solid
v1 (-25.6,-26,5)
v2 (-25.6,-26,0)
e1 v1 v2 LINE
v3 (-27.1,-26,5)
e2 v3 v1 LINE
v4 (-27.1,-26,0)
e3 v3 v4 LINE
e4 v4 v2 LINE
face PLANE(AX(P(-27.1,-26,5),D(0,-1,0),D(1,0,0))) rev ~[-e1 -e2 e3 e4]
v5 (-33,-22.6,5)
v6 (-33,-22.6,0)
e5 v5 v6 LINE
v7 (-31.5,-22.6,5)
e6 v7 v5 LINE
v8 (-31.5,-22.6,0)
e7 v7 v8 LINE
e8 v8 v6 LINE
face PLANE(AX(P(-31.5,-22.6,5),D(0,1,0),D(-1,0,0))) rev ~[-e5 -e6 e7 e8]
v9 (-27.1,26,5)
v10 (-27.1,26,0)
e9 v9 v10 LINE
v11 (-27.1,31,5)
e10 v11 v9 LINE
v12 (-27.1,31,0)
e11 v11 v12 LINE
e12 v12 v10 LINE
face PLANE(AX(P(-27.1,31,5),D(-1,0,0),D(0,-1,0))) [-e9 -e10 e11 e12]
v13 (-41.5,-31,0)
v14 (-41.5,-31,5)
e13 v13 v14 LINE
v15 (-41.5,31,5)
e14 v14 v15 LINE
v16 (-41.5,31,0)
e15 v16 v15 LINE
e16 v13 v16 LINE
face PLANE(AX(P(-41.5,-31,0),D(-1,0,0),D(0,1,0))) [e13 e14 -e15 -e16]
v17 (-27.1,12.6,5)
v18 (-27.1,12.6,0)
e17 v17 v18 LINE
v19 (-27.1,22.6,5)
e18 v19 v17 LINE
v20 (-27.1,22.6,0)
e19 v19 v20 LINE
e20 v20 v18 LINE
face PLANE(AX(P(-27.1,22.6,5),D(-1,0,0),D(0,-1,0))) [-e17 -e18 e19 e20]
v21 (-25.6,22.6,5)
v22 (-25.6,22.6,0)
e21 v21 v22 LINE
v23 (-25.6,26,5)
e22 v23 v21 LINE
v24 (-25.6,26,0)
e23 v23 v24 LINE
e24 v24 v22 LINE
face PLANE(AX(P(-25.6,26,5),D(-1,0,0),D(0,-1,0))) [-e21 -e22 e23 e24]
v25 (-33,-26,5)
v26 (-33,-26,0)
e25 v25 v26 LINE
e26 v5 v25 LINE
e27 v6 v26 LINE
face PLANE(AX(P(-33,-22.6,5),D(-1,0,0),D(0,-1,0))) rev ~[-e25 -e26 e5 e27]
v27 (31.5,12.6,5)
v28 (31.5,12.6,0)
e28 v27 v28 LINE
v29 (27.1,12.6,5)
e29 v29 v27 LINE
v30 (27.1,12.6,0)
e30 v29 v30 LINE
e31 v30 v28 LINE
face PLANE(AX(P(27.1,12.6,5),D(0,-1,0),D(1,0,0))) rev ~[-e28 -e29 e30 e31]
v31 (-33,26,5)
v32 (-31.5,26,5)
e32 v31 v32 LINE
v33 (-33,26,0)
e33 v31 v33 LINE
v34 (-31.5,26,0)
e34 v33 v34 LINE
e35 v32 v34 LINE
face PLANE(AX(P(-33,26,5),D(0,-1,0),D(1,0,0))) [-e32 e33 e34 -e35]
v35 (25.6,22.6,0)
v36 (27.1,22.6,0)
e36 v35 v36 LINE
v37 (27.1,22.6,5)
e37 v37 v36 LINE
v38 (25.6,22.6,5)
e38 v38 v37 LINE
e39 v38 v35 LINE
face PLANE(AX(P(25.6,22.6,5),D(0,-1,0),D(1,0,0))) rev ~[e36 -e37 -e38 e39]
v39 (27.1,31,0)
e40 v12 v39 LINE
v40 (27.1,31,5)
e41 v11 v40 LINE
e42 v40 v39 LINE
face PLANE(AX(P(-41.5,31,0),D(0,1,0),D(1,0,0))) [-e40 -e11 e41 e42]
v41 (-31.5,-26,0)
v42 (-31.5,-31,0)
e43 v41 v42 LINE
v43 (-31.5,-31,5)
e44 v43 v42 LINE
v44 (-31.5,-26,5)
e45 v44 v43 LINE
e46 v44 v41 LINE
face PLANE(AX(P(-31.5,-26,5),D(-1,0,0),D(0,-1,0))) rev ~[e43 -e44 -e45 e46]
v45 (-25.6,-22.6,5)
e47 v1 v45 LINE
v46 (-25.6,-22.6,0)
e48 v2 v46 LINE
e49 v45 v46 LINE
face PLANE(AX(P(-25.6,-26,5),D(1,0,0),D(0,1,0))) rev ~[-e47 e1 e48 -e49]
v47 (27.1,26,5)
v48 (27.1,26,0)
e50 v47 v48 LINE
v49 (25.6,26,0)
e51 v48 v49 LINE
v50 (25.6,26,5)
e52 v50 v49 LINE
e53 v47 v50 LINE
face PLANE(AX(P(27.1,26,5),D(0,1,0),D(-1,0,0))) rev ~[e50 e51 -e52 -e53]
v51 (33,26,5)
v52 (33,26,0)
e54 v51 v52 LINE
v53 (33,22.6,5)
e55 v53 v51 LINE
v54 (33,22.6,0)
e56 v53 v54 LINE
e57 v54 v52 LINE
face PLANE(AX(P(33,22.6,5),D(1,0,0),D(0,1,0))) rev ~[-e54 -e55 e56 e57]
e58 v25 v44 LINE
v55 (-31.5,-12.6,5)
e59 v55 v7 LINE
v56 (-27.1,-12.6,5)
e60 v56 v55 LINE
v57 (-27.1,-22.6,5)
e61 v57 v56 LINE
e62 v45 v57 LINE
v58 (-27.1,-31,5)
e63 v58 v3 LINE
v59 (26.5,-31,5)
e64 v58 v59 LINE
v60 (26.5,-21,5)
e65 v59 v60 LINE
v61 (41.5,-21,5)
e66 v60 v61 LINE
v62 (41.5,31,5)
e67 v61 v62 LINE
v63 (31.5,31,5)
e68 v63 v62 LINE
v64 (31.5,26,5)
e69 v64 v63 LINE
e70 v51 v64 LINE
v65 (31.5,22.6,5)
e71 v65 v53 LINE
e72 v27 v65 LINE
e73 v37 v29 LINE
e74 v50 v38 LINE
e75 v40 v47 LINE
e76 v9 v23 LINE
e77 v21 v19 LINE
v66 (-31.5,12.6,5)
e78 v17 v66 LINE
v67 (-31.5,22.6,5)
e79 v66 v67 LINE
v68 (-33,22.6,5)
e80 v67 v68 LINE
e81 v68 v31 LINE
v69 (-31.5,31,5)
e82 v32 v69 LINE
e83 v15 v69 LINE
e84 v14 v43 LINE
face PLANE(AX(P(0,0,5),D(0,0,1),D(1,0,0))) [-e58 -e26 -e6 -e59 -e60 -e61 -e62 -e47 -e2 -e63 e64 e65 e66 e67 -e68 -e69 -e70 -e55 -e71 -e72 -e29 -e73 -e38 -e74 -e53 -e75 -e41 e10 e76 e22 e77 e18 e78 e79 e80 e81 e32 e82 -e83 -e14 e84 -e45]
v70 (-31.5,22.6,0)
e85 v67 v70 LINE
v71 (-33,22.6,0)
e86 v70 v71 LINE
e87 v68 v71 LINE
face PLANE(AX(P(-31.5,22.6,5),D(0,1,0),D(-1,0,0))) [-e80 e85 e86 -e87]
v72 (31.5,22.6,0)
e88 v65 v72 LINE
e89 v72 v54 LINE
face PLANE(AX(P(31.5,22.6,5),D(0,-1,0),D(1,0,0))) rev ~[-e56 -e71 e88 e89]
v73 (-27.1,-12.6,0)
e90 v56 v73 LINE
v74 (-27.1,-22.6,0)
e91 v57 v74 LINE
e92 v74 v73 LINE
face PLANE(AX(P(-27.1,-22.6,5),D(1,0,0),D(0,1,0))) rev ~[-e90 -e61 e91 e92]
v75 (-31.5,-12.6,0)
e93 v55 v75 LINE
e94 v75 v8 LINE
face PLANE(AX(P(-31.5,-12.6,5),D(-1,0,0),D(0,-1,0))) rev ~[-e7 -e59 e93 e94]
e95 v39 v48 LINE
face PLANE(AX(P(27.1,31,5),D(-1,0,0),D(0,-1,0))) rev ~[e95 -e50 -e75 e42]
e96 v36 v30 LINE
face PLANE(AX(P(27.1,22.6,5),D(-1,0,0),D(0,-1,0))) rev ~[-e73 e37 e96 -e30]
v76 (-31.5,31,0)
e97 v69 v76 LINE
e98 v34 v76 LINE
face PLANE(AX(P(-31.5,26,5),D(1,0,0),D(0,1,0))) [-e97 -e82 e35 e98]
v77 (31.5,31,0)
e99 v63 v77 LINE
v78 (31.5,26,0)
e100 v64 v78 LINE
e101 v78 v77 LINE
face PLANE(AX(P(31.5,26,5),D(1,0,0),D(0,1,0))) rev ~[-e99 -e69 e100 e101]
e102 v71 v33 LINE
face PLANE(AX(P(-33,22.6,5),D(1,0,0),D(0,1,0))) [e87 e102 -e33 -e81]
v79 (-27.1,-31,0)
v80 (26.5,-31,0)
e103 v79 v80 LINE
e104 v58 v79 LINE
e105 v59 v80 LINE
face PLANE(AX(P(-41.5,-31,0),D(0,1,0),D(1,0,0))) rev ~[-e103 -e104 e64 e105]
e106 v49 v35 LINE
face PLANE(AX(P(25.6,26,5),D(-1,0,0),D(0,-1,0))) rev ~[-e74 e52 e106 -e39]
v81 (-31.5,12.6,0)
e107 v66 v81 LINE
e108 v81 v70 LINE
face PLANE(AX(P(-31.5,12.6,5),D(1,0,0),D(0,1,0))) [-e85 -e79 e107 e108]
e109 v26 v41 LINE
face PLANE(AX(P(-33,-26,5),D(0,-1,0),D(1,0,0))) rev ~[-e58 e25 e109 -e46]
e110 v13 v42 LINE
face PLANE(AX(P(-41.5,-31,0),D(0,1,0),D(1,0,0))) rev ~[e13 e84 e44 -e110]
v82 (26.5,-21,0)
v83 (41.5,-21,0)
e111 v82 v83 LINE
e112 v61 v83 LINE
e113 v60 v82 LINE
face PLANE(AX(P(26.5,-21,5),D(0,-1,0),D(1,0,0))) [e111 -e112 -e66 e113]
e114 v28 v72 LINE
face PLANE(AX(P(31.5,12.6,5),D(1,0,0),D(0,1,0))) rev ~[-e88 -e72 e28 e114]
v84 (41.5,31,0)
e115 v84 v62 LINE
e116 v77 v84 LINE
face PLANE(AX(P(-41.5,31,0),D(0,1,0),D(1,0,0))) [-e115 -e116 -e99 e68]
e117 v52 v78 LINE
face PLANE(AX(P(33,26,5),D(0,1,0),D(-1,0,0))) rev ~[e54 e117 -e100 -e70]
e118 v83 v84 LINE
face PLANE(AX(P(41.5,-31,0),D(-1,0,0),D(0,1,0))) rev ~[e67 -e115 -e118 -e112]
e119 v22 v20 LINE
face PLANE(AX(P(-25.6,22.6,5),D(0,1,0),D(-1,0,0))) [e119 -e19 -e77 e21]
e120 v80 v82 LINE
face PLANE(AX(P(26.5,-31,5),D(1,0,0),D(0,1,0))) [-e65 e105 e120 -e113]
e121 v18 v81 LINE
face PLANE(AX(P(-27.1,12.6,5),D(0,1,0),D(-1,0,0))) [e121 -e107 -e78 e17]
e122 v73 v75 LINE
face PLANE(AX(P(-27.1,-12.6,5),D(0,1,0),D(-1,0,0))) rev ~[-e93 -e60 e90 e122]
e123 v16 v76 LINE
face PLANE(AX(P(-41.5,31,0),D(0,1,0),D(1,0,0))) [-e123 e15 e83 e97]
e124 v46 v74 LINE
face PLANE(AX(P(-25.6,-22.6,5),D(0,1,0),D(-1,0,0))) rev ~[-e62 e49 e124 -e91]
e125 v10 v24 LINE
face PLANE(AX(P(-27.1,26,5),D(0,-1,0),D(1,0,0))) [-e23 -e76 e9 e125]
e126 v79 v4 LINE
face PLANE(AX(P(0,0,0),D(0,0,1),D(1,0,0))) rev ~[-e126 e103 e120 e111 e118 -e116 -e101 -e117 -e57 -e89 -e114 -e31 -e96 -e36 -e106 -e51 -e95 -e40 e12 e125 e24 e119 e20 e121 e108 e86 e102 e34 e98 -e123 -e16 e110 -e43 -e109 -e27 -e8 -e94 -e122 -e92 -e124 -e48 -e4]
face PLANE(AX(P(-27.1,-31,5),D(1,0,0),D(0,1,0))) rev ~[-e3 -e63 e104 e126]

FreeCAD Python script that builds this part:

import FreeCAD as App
import Part
import Sketcher
Q = App.Units.Quantity


def add_polygon(sketch, points):
    """Adds a closed chain of lines whose ends are joined by coincident constraints."""
    first, n = sketch.GeometryCount, len(points)
    for a, b in zip(points, points[1:] + points[:1]):
        sketch.addGeometry(Part.LineSegment(App.Vector(*a, 0), App.Vector(*b, 0)), False)
    for i in range(n):
        sketch.addConstraint(Sketcher.Constraint("Coincident", first + i, 2, first + (i + 1) % n, 1))

doc = App.newDocument("Part")
params = doc.addObject("Spreadsheet::Sheet", "Params")
for row, (alias, value) in enumerate([
    ("sketch1_width", "83 mm"),
    ("sketch1_height", "62 mm"),
    ("pad1_length", "5 mm"),
    ("sketch2_width", "15 mm"),
    ("sketch2_height", "10 mm"),
    ("pocket1_length", "10 mm"),
    ("sketch3_height", "10 mm"),
    ("sketch3_height2", "5 mm"),
    ("sketch3_width", "1.5 mm"),
    ("sketch3_width2", "4.4 mm"),
    ("sketch3_height3", "3.4 mm"),
    ("pocket2_length", "5 mm"),
], start=1):
    params.set(f"A{row}", alias)
    params.set(f"B{row}", "=" + value)
    params.setAlias(f"B{row}", alias)

body = doc.addObject("PartDesign::Body", "Body")

# Sketch on XY plane
sketch1 = doc.addObject("Sketcher::SketchObject", "Sketch")
body.addObject(sketch1)
sketch1.AttachmentSupport = (doc.XY_Plane, [""])
sketch1.MapMode = "FlatFace"
add_polygon(sketch1, [(-42, 31), (-42, -31), (42, -31), (42, 31)])  # lines 0-3
sketch1.addConstraint([
    Sketcher.Constraint("Vertical", 0),
    Sketcher.Constraint("Horizontal", 1),
    Sketcher.Constraint("Vertical", 2),
    Sketcher.Constraint("Horizontal", 3),
    Sketcher.Constraint("Symmetric", 0, 2, 2, 2, -1, 1),
    Sketcher.Constraint("DistanceX", 1, 1, 1, 2, Q("83 mm")),
    Sketcher.Constraint("DistanceY", 0, 2, 0, 1, Q("62 mm")),
])
sketch1.setExpression("Constraints[9]", "Params.sketch1_width")
sketch1.setExpression("Constraints[10]", "Params.sketch1_height")
pad1 = doc.addObject("PartDesign::Pad", "Pad")
body.addObject(pad1)
pad1.Profile = sketch1
pad1.setExpression("Length", "Params.pad1_length")

# Sketch on XY plane
sketch2 = doc.addObject("Sketcher::SketchObject", "Sketch001")
body.addObject(sketch2)
sketch2.AttachmentSupport = (doc.XY_Plane, [""])
sketch2.MapMode = "FlatFace"
sketch2.AttachmentOffset = App.Placement(App.Vector(0, 0, 5), App.Rotation())
add_polygon(sketch2, [(26, -21), (26, -31), (42, -31), (42, -21)])  # lines 0-3
sketch2.addConstraint([
    Sketcher.Constraint("Vertical", 0),
    Sketcher.Constraint("Horizontal", 1),
    Sketcher.Constraint("Vertical", 2),
    Sketcher.Constraint("Horizontal", 3),
    Sketcher.Constraint("DistanceX", 1, 1, 1, 2, Q("15 mm")),
    Sketcher.Constraint("DistanceY", 0, 2, 0, 1, Q("10 mm")),
    Sketcher.Constraint("DistanceY", 0, 2, -1, 1, Q("31 mm")),
    Sketcher.Constraint("DistanceX", -1, 1, 0, 2, Q("26.5 mm")),
])
sketch2.setExpression("Constraints[8]", "Params.sketch2_width")
sketch2.setExpression("Constraints[9]", "Params.sketch2_height")
pocket1 = doc.addObject("PartDesign::Pocket", "Pocket")
body.addObject(pocket1)
pocket1.Profile = sketch2
pocket1.setExpression("Length", "Params.pocket1_length")

# Sketch on XY plane
sketch3 = doc.addObject("Sketcher::SketchObject", "Sketch002")
body.addObject(sketch3)
sketch3.AttachmentSupport = (doc.XY_Plane, [""])
sketch3.MapMode = "FlatFace"
sketch3.AttachmentOffset = App.Placement(App.Vector(0, 0, 5), App.Rotation())
add_polygon(sketch3, [(-27.1, 12.6), (-27.1, 22.6), (-25.6, 22.6), (-25.6, 26), (-27.1, 26), (-27.1, 31), (-31.5, 31), (-31.5, 26), (-33, 26), (-33, 22.6), (-31.5, 22.6), (-31.5, 12.6)])  # lines 0-11
add_polygon(sketch3, [(31.5, 12.6), (31.5, 22.6), (33, 22.6), (33, 26), (31.5, 26), (31.5, 31), (27.1, 31), (27.1, 26), (25.6, 26), (25.6, 22.6), (27.1, 22.6), (27.1, 12.6)])  # lines 12-23
add_polygon(sketch3, [(-31.5, -12.6), (-31.5, -22.6), (-33, -22.6), (-33, -26), (-31.5, -26), (-31.5, -31), (-27.1, -31), (-27.1, -26), (-25.6, -26), (-25.6, -22.6), (-27.1, -22.6), (-27.1, -12.6)])  # lines 24-35
sketch3.addConstraint([
    Sketcher.Constraint("Vertical", 0),
    Sketcher.Constraint("Horizontal", 1),
    Sketcher.Constraint("Vertical", 2),
    Sketcher.Constraint("Horizontal", 3),
    Sketcher.Constraint("Vertical", 4),
    Sketcher.Constraint("Horizontal", 5),
    Sketcher.Constraint("Vertical", 6),
    Sketcher.Constraint("Horizontal", 7),
    Sketcher.Constraint("Vertical", 8),
    Sketcher.Constraint("Horizontal", 9),
    Sketcher.Constraint("Vertical", 10),
    Sketcher.Constraint("Horizontal", 11),
    Sketcher.Constraint("Vertical", 12),
    Sketcher.Constraint("Horizontal", 13),
    Sketcher.Constraint("Vertical", 14),
    Sketcher.Constraint("Horizontal", 15),
    Sketcher.Constraint("Vertical", 16),
    Sketcher.Constraint("Horizontal", 17),
    Sketcher.Constraint("Vertical", 18),
    Sketcher.Constraint("Horizontal", 19),
    Sketcher.Constraint("Vertical", 20),
    Sketcher.Constraint("Horizontal", 21),
    Sketcher.Constraint("Vertical", 22),
    Sketcher.Constraint("Horizontal", 23),
    Sketcher.Constraint("Vertical", 24),
    Sketcher.Constraint("Horizontal", 25),
    Sketcher.Constraint("Vertical", 26),
    Sketcher.Constraint("Horizontal", 27),
    Sketcher.Constraint("Vertical", 28),
    Sketcher.Constraint("Horizontal", 29),
    Sketcher.Constraint("Vertical", 30),
    Sketcher.Constraint("Horizontal", 31),
    Sketcher.Constraint("Vertical", 32),
    Sketcher.Constraint("Horizontal", 33),
    Sketcher.Constraint("Vertical", 34),
    Sketcher.Constraint("Horizontal", 35),
    Sketcher.Constraint("Symmetric", 12, 2, 24, 2, -1, 1),
    Sketcher.Constraint("Symmetric", 14, 2, 26, 2, -1, 1),
    Sketcher.Constraint("Symmetric", 16, 2, 28, 2, -1, 1),
    Sketcher.Constraint("Symmetric", 18, 2, 30, 2, -1, 1),
    Sketcher.Constraint("Symmetric", 20, 2, 32, 2, -1, 1),
    Sketcher.Constraint("Symmetric", 22, 2, 34, 2, -1, 1),
    Sketcher.Constraint("Symmetric", 9, 2, 12, 2, -2),
    Sketcher.Constraint("Symmetric", 7, 2, 14, 2, -2),
    Sketcher.Constraint("Symmetric", 5, 2, 16, 2, -2),
    Sketcher.Constraint("Symmetric", 3, 2, 18, 2, -2),
    Sketcher.Constraint("Symmetric", 1, 2, 20, 2, -2),
    Sketcher.Constraint("Symmetric", 11, 2, 22, 2, -2),
    Sketcher.Constraint("Horizontal", 3, 2, 6, 2),
    Sketcher.Constraint("Horizontal", 1, 2, 8, 2),
    Sketcher.Constraint("Vertical", 0, 2, 3, 2),
    Sketcher.Constraint("Vertical", 6, 2, 9, 2),
    Sketcher.Constraint("Equal", 3, 7),
    Sketcher.Constraint("DistanceY", 0, 1, 0, 2, Q("10 mm")),
    Sketcher.Constraint("DistanceY", 4, 1, 4, 2, Q("5 mm")),
    Sketcher.Constraint("DistanceX", 1, 1, 1, 2, Q("1.5 mm")),
    Sketcher.Constraint("DistanceX", 5, 2, 5, 1, Q("4.4 mm")),
    Sketcher.Constraint("DistanceY", 2, 1, 2, 2, Q("3.4 mm")),
    Sketcher.Constraint("DistanceY", -1, 1, 2, 2, Q("26 mm")),
    Sketcher.Constraint("DistanceX", 7, 2, -1, 1, Q("33 mm")),
])
sketch3.setExpression("Constraints[89]", "Params.sketch3_height")
sketch3.setExpression("Constraints[90]", "Params.sketch3_height2")
sketch3.setExpression("Constraints[91]", "Params.sketch3_width")
sketch3.setExpression("Constraints[92]", "Params.sketch3_width2")
sketch3.setExpression("Constraints[93]", "Params.sketch3_height3")
pocket2 = doc.addObject("PartDesign::Pocket", "Pocket001")
body.addObject(pocket2)
pocket2.Profile = sketch3
pocket2.setExpression("Length", "Params.pocket2_length")

doc.recompute()
